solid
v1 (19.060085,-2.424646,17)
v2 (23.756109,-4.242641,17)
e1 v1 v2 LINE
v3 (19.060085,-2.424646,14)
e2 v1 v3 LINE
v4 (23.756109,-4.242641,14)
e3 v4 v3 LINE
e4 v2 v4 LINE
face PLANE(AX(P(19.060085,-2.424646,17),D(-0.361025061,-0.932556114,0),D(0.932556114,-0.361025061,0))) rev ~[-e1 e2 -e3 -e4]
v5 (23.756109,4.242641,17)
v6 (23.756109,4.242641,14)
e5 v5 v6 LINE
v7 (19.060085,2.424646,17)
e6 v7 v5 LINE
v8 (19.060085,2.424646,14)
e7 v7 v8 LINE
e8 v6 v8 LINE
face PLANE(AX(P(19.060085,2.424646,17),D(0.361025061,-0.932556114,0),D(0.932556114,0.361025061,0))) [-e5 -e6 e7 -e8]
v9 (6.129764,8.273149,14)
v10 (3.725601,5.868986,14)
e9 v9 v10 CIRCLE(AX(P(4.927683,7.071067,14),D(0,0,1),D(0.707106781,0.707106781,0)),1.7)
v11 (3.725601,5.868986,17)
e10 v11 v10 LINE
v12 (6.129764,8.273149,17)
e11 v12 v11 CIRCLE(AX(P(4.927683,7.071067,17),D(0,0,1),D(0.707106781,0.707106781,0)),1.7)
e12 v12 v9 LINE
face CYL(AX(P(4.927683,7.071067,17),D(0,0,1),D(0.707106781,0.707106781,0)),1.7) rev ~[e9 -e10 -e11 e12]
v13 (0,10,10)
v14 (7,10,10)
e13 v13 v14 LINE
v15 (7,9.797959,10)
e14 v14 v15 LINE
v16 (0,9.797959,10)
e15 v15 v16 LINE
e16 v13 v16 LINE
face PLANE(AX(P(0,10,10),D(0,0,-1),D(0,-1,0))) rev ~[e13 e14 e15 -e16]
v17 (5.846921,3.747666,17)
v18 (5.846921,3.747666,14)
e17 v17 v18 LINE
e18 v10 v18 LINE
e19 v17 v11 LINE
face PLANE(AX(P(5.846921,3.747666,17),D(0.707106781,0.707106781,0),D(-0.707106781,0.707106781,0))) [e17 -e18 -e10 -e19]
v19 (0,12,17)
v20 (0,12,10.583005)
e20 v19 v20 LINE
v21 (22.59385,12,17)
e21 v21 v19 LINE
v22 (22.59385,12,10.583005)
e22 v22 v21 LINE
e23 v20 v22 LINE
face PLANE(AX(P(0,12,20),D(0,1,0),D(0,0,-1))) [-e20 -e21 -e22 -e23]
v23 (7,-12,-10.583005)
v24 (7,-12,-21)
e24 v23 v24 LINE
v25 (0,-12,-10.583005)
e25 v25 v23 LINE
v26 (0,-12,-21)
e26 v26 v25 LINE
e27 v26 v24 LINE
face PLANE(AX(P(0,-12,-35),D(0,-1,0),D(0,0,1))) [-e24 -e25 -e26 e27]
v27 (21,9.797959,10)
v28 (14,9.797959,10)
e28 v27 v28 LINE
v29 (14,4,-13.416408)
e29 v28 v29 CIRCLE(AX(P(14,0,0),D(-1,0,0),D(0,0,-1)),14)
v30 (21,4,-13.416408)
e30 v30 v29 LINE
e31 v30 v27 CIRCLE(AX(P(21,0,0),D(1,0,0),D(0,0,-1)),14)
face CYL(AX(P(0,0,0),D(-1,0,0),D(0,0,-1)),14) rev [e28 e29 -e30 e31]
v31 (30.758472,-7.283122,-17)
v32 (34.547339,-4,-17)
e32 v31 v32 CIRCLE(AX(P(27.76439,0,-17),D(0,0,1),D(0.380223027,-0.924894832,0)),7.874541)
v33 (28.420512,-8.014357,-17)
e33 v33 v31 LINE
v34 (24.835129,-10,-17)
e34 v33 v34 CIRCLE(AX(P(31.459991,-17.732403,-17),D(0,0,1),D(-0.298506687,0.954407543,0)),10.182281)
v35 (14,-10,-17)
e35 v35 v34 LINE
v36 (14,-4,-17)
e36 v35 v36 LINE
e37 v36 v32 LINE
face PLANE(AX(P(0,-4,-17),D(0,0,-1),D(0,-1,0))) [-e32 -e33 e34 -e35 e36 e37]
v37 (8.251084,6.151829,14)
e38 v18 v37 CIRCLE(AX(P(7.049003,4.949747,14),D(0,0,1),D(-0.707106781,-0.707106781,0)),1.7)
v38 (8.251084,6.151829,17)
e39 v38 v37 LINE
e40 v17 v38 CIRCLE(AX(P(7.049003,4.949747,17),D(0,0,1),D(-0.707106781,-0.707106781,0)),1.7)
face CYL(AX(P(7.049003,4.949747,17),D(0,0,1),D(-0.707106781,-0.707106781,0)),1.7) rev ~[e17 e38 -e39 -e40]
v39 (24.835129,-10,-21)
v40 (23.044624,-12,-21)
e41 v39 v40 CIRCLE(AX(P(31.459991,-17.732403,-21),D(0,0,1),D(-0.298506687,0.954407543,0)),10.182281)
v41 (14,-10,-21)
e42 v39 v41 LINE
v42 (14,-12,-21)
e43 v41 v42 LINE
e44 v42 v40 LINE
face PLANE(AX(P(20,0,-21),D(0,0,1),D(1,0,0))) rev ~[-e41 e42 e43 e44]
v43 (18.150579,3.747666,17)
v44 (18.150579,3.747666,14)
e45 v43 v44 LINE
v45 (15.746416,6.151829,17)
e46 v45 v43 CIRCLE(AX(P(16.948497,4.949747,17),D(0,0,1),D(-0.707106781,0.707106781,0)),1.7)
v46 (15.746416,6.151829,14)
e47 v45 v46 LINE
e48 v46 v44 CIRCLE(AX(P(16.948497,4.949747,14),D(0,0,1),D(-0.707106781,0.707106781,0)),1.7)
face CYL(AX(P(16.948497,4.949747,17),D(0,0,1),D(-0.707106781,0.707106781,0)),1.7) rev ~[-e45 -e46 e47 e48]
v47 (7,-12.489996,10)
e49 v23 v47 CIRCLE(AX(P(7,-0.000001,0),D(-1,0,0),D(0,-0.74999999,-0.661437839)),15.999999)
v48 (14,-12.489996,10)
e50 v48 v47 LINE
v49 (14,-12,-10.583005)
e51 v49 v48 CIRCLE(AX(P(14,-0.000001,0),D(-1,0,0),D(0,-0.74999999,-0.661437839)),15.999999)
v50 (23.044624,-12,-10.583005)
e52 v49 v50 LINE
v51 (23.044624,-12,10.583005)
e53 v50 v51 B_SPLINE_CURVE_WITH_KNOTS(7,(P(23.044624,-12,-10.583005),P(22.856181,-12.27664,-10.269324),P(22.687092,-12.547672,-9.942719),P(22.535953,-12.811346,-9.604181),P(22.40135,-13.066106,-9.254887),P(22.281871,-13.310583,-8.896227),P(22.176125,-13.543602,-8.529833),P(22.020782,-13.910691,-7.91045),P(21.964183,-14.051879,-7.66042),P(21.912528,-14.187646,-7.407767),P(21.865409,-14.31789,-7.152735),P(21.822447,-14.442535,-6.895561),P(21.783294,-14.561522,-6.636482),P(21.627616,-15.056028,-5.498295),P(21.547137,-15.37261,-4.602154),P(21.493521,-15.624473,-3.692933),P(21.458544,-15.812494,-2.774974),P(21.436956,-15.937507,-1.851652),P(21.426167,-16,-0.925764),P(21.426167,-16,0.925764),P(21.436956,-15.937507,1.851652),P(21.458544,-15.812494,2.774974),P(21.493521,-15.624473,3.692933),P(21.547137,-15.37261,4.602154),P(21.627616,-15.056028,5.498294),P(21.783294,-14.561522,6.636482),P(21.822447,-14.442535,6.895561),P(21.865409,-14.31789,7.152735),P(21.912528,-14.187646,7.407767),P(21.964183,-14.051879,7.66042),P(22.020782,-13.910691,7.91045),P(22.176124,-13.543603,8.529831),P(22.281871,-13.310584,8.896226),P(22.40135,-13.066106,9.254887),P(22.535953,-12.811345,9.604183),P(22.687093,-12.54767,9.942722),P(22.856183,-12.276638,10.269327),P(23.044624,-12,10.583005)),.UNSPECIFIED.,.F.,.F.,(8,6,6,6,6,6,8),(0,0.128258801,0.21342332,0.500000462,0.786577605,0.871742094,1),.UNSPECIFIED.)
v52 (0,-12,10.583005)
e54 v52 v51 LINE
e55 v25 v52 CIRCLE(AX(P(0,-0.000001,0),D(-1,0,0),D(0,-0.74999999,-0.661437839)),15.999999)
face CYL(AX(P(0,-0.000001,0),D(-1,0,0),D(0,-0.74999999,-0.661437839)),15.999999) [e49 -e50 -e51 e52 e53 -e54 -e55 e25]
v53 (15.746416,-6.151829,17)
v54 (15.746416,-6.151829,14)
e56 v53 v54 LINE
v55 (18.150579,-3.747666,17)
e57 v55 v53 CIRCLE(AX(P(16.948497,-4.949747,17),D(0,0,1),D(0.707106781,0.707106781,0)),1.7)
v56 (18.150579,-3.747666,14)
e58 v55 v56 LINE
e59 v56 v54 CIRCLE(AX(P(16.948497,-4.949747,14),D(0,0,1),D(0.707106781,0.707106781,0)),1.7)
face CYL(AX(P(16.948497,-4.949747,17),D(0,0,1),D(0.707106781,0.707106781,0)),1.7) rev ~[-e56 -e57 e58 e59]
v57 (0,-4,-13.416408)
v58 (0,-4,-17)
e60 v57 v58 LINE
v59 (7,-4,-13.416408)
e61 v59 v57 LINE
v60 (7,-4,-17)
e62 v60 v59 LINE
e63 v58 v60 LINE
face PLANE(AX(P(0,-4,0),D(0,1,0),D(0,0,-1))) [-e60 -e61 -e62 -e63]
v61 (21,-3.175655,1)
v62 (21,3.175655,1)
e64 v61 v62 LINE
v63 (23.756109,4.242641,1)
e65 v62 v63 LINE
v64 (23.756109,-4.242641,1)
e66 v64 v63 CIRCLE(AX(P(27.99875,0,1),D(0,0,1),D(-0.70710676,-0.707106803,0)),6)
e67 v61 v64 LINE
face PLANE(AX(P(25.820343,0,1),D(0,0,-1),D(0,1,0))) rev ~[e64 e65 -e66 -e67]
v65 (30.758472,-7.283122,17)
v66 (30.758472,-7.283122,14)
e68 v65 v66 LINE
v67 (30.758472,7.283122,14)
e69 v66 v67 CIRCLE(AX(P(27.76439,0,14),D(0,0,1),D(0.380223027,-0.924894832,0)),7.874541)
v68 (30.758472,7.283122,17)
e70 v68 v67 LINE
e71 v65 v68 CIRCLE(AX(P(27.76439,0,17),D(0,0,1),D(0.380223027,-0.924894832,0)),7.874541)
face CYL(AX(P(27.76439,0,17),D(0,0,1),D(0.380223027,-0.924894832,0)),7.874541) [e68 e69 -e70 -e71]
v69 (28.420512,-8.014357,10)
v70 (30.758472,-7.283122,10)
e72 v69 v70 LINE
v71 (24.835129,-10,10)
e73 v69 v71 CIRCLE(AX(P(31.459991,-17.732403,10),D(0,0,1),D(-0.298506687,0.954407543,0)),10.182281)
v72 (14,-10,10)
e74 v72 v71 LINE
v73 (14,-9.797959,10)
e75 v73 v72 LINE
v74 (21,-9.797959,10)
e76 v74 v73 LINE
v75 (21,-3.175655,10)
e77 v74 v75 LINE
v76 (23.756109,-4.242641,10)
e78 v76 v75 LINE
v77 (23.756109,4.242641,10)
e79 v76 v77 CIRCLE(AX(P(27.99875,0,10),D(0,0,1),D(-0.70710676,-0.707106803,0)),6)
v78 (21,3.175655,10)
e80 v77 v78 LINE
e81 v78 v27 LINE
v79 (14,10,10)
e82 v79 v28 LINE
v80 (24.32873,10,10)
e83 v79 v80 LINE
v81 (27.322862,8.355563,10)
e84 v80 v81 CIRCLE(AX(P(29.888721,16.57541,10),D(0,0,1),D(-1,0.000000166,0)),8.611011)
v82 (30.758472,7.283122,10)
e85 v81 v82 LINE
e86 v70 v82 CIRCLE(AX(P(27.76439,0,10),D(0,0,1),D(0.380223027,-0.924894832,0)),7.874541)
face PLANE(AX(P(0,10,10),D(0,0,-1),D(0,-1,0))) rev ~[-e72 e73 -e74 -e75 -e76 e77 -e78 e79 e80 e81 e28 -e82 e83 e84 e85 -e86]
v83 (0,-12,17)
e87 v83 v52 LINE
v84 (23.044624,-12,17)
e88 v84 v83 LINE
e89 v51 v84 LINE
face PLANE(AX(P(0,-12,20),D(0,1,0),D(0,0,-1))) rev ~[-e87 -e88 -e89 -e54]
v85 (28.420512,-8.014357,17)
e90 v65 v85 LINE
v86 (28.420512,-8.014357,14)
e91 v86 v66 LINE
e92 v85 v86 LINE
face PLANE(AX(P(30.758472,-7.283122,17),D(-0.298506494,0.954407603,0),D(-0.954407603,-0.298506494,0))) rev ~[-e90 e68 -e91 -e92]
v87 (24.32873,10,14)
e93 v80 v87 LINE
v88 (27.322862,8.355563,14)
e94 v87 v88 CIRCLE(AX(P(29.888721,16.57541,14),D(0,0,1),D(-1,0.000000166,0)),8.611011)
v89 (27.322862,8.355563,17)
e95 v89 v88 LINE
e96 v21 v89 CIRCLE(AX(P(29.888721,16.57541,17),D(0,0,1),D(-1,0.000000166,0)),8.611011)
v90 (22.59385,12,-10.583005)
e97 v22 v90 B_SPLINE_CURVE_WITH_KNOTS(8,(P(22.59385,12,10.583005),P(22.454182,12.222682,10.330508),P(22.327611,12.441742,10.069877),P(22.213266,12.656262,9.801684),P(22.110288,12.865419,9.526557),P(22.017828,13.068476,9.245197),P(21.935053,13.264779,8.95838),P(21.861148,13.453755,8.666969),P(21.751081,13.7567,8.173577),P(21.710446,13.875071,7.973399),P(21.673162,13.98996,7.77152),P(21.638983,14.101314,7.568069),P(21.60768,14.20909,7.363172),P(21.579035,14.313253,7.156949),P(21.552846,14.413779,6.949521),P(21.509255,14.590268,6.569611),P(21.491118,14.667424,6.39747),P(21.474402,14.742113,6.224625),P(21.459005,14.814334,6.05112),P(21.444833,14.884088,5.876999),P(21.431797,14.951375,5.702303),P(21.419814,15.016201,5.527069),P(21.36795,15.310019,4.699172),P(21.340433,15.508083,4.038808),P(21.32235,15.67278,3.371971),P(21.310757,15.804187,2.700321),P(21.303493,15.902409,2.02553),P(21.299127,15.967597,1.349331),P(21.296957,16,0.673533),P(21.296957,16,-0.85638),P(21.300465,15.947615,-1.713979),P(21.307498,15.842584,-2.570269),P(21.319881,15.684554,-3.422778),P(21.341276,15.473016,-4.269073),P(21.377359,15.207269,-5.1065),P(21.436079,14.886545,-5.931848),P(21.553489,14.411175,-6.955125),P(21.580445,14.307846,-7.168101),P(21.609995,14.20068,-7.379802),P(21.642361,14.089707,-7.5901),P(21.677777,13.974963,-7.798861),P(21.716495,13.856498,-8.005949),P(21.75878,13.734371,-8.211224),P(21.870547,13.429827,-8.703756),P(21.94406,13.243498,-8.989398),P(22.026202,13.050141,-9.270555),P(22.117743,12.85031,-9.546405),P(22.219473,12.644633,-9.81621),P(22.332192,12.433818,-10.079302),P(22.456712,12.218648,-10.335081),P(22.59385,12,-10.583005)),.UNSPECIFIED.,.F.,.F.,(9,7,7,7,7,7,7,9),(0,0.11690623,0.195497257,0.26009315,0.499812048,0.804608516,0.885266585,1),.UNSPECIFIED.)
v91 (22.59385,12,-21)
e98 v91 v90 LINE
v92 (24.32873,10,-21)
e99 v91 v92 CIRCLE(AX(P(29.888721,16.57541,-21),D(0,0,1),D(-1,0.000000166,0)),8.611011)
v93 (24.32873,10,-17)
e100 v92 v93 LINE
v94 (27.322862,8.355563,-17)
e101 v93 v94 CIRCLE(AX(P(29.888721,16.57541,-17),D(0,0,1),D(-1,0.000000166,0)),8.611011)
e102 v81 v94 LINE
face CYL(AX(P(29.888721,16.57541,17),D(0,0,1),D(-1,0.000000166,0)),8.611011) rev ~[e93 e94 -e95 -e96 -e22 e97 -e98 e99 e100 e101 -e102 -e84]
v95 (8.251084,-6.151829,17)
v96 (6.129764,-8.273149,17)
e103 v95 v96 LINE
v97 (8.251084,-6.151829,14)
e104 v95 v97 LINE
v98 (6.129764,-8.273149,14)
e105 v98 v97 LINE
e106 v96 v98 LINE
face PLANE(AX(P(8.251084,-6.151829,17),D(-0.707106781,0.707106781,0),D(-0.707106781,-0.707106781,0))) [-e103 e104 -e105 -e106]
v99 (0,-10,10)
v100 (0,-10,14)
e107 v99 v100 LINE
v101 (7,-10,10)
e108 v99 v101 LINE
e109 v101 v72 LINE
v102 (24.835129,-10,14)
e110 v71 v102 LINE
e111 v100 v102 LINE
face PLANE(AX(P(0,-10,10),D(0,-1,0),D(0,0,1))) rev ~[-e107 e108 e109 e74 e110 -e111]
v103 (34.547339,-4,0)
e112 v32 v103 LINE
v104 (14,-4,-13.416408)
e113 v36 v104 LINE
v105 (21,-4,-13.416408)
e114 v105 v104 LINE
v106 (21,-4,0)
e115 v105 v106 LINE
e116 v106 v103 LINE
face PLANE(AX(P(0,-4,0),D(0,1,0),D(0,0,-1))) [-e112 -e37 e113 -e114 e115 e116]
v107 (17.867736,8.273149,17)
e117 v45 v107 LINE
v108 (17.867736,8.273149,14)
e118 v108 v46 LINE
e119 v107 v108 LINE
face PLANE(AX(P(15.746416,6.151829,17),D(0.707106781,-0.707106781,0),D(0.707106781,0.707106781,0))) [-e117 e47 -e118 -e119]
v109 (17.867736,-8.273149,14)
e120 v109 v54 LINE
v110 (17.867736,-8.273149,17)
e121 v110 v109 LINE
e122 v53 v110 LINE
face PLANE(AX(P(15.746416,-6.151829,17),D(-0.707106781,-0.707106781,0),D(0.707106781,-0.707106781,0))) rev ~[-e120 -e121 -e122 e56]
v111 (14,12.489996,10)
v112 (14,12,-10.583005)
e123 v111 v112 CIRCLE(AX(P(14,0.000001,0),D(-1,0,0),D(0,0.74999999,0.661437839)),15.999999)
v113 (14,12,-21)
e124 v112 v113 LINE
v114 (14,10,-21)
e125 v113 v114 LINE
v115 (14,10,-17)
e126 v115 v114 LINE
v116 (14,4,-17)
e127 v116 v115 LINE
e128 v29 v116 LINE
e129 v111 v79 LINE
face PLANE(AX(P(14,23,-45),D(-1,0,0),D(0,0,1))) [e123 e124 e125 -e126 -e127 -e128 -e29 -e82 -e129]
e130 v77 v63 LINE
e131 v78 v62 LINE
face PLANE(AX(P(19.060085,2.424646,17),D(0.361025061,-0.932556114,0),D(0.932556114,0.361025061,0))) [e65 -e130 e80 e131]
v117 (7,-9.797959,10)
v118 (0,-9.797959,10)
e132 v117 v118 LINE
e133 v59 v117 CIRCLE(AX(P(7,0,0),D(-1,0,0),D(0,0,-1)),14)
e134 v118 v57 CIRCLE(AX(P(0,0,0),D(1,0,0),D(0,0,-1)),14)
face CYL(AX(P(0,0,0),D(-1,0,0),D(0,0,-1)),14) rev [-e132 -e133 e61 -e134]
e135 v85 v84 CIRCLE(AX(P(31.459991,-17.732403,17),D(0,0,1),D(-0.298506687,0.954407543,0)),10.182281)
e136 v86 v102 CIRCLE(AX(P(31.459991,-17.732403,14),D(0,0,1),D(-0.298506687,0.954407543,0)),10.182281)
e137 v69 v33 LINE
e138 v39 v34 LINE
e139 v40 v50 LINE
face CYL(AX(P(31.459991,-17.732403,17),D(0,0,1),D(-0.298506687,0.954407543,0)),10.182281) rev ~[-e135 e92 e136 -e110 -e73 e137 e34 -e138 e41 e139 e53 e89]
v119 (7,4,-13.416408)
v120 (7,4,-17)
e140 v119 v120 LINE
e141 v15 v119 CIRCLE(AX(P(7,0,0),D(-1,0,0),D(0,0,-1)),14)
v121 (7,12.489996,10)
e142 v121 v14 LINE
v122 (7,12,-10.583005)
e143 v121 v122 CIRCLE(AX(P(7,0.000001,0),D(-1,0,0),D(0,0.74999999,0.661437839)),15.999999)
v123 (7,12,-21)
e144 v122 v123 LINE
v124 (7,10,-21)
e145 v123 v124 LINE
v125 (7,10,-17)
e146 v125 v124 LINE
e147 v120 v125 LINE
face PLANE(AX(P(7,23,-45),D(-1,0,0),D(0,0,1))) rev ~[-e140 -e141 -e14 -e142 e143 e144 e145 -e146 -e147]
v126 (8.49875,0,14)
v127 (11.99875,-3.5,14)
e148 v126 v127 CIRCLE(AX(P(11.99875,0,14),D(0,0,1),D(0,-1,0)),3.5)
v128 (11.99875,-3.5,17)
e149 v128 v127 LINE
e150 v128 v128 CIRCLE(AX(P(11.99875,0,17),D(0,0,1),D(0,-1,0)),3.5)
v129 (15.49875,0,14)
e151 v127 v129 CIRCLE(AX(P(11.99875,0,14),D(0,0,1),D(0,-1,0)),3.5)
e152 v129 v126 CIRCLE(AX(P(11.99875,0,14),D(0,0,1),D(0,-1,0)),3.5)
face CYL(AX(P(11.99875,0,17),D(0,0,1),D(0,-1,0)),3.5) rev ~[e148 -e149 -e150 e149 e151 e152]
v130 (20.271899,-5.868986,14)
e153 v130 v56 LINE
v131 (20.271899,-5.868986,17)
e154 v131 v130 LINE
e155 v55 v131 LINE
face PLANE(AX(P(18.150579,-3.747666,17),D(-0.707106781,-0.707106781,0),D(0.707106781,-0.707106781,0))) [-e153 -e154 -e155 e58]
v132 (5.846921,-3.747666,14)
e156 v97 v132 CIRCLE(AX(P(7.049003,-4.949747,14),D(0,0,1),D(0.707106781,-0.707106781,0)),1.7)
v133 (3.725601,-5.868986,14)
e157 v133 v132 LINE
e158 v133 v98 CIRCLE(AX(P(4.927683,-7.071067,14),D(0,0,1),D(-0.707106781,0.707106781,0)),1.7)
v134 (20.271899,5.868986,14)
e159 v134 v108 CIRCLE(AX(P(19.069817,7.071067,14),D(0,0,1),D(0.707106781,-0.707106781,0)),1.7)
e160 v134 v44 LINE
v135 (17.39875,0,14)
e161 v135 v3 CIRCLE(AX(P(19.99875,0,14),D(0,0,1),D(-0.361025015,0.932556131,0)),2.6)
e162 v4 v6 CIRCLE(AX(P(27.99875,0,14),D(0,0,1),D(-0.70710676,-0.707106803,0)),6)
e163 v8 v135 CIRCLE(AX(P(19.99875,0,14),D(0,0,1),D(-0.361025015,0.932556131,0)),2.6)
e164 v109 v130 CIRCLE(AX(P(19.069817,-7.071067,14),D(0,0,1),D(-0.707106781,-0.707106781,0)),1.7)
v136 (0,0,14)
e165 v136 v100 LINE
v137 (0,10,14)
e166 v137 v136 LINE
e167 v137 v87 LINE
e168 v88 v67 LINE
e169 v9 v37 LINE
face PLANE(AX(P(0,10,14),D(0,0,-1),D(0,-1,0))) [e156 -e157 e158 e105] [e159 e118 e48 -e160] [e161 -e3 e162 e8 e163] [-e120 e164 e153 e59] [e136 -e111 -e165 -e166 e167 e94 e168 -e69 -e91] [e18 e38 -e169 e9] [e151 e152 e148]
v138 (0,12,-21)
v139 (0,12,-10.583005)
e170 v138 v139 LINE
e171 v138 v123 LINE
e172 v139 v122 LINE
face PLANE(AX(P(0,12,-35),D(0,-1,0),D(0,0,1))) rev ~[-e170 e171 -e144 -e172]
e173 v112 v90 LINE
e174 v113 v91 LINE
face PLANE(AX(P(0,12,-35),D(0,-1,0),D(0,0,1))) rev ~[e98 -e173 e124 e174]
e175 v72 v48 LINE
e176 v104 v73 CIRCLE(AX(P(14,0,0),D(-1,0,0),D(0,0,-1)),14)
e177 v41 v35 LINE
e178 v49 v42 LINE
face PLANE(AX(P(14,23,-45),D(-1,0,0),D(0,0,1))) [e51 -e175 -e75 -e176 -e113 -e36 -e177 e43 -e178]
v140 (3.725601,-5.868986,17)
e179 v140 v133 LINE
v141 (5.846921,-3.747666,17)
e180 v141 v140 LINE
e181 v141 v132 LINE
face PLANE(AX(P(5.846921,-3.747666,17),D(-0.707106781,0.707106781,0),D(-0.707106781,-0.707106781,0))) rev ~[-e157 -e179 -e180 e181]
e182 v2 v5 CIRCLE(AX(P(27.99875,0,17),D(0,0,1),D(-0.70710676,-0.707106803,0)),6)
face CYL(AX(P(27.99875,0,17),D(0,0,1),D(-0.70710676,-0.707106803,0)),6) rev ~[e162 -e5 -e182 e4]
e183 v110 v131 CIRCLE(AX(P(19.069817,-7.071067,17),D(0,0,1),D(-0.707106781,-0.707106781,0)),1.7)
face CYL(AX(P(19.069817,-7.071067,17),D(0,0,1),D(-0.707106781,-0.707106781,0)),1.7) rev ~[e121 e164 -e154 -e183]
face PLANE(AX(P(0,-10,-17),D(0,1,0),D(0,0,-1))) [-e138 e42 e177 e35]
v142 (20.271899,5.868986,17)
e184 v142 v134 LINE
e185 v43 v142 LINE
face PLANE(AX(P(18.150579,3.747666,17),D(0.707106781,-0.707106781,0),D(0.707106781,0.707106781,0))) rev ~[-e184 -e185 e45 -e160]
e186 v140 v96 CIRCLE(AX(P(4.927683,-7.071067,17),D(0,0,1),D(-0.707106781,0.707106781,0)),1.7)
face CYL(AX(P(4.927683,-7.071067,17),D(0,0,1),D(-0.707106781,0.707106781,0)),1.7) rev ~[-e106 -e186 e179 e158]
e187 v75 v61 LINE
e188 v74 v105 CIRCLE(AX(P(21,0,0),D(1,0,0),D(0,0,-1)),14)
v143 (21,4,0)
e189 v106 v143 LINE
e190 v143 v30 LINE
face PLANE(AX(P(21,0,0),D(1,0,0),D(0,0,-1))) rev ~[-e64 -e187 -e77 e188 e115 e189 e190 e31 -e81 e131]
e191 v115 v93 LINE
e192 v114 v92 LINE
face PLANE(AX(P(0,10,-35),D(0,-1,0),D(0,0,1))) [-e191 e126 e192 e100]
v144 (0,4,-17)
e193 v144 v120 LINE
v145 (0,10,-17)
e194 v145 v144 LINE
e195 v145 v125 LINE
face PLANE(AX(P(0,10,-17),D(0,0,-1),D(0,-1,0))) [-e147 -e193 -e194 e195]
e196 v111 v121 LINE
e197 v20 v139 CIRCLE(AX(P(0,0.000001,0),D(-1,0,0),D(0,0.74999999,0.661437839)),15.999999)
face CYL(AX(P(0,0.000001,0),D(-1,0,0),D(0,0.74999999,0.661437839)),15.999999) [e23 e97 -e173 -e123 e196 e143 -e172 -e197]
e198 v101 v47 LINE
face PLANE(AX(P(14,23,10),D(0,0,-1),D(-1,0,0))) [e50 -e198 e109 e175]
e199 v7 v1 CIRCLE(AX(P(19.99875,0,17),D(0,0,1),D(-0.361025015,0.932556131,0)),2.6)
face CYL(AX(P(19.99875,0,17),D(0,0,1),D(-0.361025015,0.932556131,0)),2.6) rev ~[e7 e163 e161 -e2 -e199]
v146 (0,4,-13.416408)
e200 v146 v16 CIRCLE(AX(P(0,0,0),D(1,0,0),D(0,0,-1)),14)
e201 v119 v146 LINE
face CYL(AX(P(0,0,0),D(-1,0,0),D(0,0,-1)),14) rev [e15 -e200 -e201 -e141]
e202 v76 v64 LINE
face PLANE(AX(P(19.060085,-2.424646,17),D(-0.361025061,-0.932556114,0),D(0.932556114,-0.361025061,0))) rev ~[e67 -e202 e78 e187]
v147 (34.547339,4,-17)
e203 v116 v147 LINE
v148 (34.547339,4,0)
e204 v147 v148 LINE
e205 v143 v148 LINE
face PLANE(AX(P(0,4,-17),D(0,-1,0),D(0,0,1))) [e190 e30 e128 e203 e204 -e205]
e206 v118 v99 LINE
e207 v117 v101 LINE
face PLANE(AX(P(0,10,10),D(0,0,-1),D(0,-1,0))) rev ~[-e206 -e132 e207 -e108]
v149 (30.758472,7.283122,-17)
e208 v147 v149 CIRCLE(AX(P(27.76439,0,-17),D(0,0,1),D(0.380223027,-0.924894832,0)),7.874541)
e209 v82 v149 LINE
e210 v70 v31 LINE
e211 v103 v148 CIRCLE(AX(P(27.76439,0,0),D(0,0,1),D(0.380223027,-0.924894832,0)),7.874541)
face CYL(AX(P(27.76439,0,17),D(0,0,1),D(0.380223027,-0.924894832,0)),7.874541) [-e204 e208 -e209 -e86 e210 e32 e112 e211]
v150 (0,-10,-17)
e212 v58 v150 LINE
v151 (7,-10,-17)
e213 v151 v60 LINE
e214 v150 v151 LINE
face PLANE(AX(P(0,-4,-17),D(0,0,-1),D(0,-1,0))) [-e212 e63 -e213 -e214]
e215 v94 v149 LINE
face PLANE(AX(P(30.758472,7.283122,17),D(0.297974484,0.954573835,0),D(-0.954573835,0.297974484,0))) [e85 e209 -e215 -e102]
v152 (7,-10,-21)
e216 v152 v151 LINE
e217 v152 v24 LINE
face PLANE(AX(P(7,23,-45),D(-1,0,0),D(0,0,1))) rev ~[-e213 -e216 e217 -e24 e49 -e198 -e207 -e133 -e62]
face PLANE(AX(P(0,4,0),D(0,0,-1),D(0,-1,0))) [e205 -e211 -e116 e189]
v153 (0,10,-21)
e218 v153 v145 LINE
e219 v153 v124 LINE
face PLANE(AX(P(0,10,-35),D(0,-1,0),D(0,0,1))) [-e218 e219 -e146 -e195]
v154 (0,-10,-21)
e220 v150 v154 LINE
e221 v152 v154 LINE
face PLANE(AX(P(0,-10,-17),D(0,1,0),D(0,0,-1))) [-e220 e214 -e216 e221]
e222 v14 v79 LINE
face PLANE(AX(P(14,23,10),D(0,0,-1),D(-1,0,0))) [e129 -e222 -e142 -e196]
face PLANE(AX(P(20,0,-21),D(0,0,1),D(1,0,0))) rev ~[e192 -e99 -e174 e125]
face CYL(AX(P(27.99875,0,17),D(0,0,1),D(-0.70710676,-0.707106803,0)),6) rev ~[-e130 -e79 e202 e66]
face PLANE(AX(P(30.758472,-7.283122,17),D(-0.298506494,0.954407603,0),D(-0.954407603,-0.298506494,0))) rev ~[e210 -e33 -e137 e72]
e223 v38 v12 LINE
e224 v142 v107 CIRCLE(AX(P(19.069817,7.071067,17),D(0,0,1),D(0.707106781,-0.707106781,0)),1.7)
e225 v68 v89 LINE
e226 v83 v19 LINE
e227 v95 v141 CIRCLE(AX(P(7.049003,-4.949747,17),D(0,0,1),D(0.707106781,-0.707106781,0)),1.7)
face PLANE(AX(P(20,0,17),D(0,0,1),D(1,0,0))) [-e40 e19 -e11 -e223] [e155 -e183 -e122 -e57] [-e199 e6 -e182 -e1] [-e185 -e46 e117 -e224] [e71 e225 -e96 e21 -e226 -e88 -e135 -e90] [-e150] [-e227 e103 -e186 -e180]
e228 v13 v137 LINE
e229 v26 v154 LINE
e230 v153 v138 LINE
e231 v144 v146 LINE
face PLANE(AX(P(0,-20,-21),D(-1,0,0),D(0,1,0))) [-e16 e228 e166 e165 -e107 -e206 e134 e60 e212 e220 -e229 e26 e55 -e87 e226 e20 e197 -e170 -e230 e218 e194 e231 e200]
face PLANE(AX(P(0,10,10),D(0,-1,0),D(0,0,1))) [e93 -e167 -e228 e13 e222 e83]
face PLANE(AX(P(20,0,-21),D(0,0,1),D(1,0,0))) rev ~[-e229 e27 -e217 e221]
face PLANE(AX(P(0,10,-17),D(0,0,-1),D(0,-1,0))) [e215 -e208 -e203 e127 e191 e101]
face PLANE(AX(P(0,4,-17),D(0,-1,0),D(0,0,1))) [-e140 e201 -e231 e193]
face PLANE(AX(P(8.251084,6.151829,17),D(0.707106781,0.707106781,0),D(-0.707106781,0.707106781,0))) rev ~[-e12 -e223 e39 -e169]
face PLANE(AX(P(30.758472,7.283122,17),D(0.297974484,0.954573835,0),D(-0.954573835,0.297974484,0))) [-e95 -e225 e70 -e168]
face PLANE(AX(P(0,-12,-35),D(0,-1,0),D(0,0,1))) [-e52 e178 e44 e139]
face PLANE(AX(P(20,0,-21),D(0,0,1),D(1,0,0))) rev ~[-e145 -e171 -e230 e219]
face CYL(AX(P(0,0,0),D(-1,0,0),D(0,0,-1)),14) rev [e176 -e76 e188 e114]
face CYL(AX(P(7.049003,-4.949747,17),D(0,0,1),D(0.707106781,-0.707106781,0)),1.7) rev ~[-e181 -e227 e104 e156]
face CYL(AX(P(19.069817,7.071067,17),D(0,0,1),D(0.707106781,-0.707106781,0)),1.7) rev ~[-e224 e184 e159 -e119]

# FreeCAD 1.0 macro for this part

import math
import FreeCAD as App
import Part
import Sketcher
from FreeCAD import Vector
Q = App.Units.Quantity

doc = App.newDocument("Part")
body = doc.addObject("PartDesign::Body", "Body")

sketch1 = body.newObject("Sketcher::SketchObject", "Sketch")
sketch1.AttachmentSupport = (doc.getObject("XY_Plane"), [""])
sketch1.MapMode = "FlatFace"
sketch1.AttachmentOffset = App.Placement(Vector(0, 0, 17), App.Rotation())
sketch1.addGeometry(Part.ArcOfCircle(Part.Circle(Vector(27.8, 0, 0), Vector(0, 0, 1), 7.9), math.radians(-68), math.radians(68)), False)
sketch1.addGeometry(Part.LineSegment(Vector(30.8, -7.3, 0), Vector(28.4, -8, 0)), False)
sketch1.addGeometry(Part.ArcOfCircle(Part.Circle(Vector(31.5, -17.7, 0), Vector(0, 0, 1), 10.2), math.radians(107), math.radians(180)), False)
sketch1.addGeometry(Part.LineSegment(Vector(21.3, -17.7, 0), Vector(21.3, -32.5, 0)), False)
sketch1.addGeometry(Part.LineSegment(Vector(21.3, -32.5, 0), Vector(57.6, -32.5, 0)), False)
sketch1.addGeometry(Part.LineSegment(Vector(57.6, -32.5, 0), Vector(57.6, 32.5, 0)), False)
sketch1.addGeometry(Part.LineSegment(Vector(57.6, 32.5, 0), Vector(21.3, 32.5, 0)), False)
sketch1.addGeometry(Part.LineSegment(Vector(21.3, 32.5, 0), Vector(21.3, 16.6, 0)), False)
sketch1.addGeometry(Part.ArcOfCircle(Part.Circle(Vector(29.9, 16.6, 0), Vector(0, 0, 1), 8.6), math.radians(180), math.radians(253)), False)
sketch1.addGeometry(Part.LineSegment(Vector(27.3, 8.4, 0), Vector(30.8, 7.3, 0)), False)
sketch1.addConstraint(Sketcher.Constraint("Coincident", 0, 1, 1, 1))
sketch1.addConstraint(Sketcher.Constraint("Tangent", 1, 2, 2, 1))
sketch1.addConstraint(Sketcher.Constraint("Tangent", 2, 2, 3, 1))
sketch1.addConstraint(Sketcher.Constraint("Coincident", 3, 2, 4, 1))
sketch1.addConstraint(Sketcher.Constraint("Coincident", 4, 2, 5, 1))
sketch1.addConstraint(Sketcher.Constraint("Coincident", 5, 2, 6, 1))
sketch1.addConstraint(Sketcher.Constraint("Coincident", 6, 2, 7, 1))
sketch1.addConstraint(Sketcher.Constraint("Tangent", 7, 2, 8, 1))
sketch1.addConstraint(Sketcher.Constraint("Tangent", 8, 2, 9, 1))
sketch1.addConstraint(Sketcher.Constraint("Coincident", 9, 2, 0, 2))
sketch1.addConstraint(Sketcher.Constraint("Vertical", 3))
sketch1.addConstraint(Sketcher.Constraint("Horizontal", 4))
sketch1.addConstraint(Sketcher.Constraint("Vertical", 5))
sketch1.addConstraint(Sketcher.Constraint("Horizontal", 6))
sketch1.addConstraint(Sketcher.Constraint("Vertical", 7))
sketch1.addConstraint(Sketcher.Constraint("Symmetric", 3, 2, 6, 2, -1))
sketch1.addConstraint(Sketcher.Constraint("Symmetric", 0, 1, 9, 2, -1))
sketch1.addConstraint(Sketcher.Constraint("Radius", 0, Q("7.874541 mm")))
sketch1.addConstraint(Sketcher.Constraint("Radius", 2, Q("10.182281 mm")))
sketch1.addConstraint(Sketcher.Constraint("Radius", 8, Q("8.611011 mm")))
sketch1.addConstraint(Sketcher.Constraint("DistanceY", 3, 2, -1, 1, Q("32.499498 mm")))
sketch1.addConstraint(Sketcher.Constraint("DistanceX", 0, 3, 2, 3, Q("3.695601 mm")))
sketch1.addConstraint(Sketcher.Constraint("DistanceX", 2, 2, 1, 2, Q("7.142802 mm")))
sketch1.addConstraint(Sketcher.Constraint("DistanceY", 2, 3, 5, 2, Q("50.231901 mm")))
sketch1.addConstraint(Sketcher.Constraint("DistanceX", 4, 1, 4, 2, Q("36.345085 mm")))
sketch1.addConstraint(Sketcher.Constraint("DistanceY", 7, 2, 7, 1, Q("15.924087 mm")))
sketch1.addConstraint(Sketcher.Constraint("DistanceX", -1, 1, 0, 3, Q("27.76439 mm")))
pad1 = body.newObject("PartDesign::Pad", "Pad")
pad1.Profile = sketch1
pad1.Length = 50
pad1.Reversed = True
body2 = doc.addObject("PartDesign::Body", "Body001")
body2.AllowCompound = True

sketch2 = body2.newObject("Sketcher::SketchObject", "Sketch001")
sketch2.AttachmentSupport = (doc.getObject("XY_Plane001"), [""])
sketch2.MapMode = "FlatFace"
sketch2.addGeometry(Part.Circle(Vector(0, 16, 0), Vector(0, 0, 1), 3.5), False)
sketch2.addGeometry(Part.ArcOfCircle(Part.Circle(Vector(-4.9, 20.9, 0), Vector(0, 0, 1), 1.7), math.radians(-135), math.radians(45)), False)
sketch2.addGeometry(Part.LineSegment(Vector(-3.7, 22.2, 0), Vector(-5.9, 24.3, 0)), False)
sketch2.addGeometry(Part.ArcOfCircle(Part.Circle(Vector(-7.1, 23.1, 0), Vector(0, 0, 1), 1.7), math.radians(45), math.radians(225)), False)
sketch2.addGeometry(Part.LineSegment(Vector(-8.3, 21.9, 0), Vector(-6.2, 19.7, 0)), False)
sketch2.addGeometry(Part.ArcOfCircle(Part.Circle(Vector(-4.9, 11, 0), Vector(0, 0, 1), 1.7), math.radians(-45), math.radians(135)), False)
sketch2.addGeometry(Part.LineSegment(Vector(-6.2, 12.3, 0), Vector(-8.3, 10.1, 0)), False)
sketch2.addGeometry(Part.ArcOfCircle(Part.Circle(Vector(-7.1, 8.9, 0), Vector(0, 0, 1), 1.7), math.radians(135), math.radians(315)), False)
sketch2.addGeometry(Part.LineSegment(Vector(-5.9, 7.7, 0), Vector(-3.7, 9.8, 0)), False)
sketch2.addGeometry(Part.ArcOfCircle(Part.Circle(Vector(4.9, 11, 0), Vector(0, 0, 1), 1.7), math.radians(45), math.radians(225)), False)
sketch2.addGeometry(Part.LineSegment(Vector(3.7, 9.8, 0), Vector(5.9, 7.7, 0)), False)
sketch2.addGeometry(Part.ArcOfCircle(Part.Circle(Vector(7.1, 8.9, 0), Vector(0, 0, 1), 1.7), math.radians(-135), math.radians(45)), False)
sketch2.addGeometry(Part.LineSegment(Vector(8.3, 10.1, 0), Vector(6.2, 12.3, 0)), False)
sketch2.addGeometry(Part.ArcOfCircle(Part.Circle(Vector(4.9, 20.9, 0), Vector(0, 0, 1), 1.7), math.radians(135), math.radians(315)), False)
sketch2.addGeometry(Part.LineSegment(Vector(6.2, 19.7, 0), Vector(8.3, 21.9, 0)), False)
sketch2.addGeometry(Part.ArcOfCircle(Part.Circle(Vector(7.1, 23.1, 0), Vector(0, 0, 1), 1.7), math.radians(-45), math.radians(135)), False)
sketch2.addGeometry(Part.LineSegment(Vector(5.9, 24.3, 0), Vector(3.7, 22.2, 0)), False)
sketch2.addGeometry(Part.LineSegment(Vector(-4.2, 27.8, 0), Vector(-2.4, 23.1, 0)), False)
sketch2.addGeometry(Part.ArcOfCircle(Part.Circle(Vector(0, 24, 0), Vector(0, 0, 1), 2.6), math.radians(-159), math.radians(-21)), False)
sketch2.addGeometry(Part.LineSegment(Vector(2.4, 23.1, 0), Vector(4.2, 27.8, 0)), False)
sketch2.addGeometry(Part.ArcOfCircle(Part.Circle(Vector(0, 32, 0), Vector(0, 0, 1), 6), math.radians(-45), math.radians(225)), False)
sketch2.addConstraint(Sketcher.Constraint("Tangent", 1, 2, 2, 1))
sketch2.addConstraint(Sketcher.Constraint("Tangent", 2, 2, 3, 1))
sketch2.addConstraint(Sketcher.Constraint("Tangent", 3, 2, 4, 1))
sketch2.addConstraint(Sketcher.Constraint("Tangent", 4, 2, 1, 1))
sketch2.addConstraint(Sketcher.Constraint("Tangent", 5, 2, 6, 1))
sketch2.addConstraint(Sketcher.Constraint("Tangent", 6, 2, 7, 1))
sketch2.addConstraint(Sketcher.Constraint("Tangent", 7, 2, 8, 1))
sketch2.addConstraint(Sketcher.Constraint("Tangent", 8, 2, 5, 1))
sketch2.addConstraint(Sketcher.Constraint("Tangent", 9, 2, 10, 1))
sketch2.addConstraint(Sketcher.Constraint("Tangent", 10, 2, 11, 1))
sketch2.addConstraint(Sketcher.Constraint("Tangent", 11, 2, 12, 1))
sketch2.addConstraint(Sketcher.Constraint("Tangent", 12, 2, 9, 1))
sketch2.addConstraint(Sketcher.Constraint("Tangent", 13, 2, 14, 1))
sketch2.addConstraint(Sketcher.Constraint("Tangent", 14, 2, 15, 1))
sketch2.addConstraint(Sketcher.Constraint("Tangent", 15, 2, 16, 1))
sketch2.addConstraint(Sketcher.Constraint("Tangent", 16, 2, 13, 1))
sketch2.addConstraint(Sketcher.Constraint("Tangent", 17, 2, 18, 1))
sketch2.addConstraint(Sketcher.Constraint("Tangent", 18, 2, 19, 1))
sketch2.addConstraint(Sketcher.Constraint("Coincident", 19, 2, 20, 1))
sketch2.addConstraint(Sketcher.Constraint("Coincident", 20, 2, 17, 1))
sketch2.addConstraint(Sketcher.Constraint("Equal", 1, 3))
sketch2.addConstraint(Sketcher.Constraint("Equal", 3, 5))
sketch2.addConstraint(Sketcher.Constraint("Equal", 5, 7))
sketch2.addConstraint(Sketcher.Constraint("Equal", 7, 9))
sketch2.addConstraint(Sketcher.Constraint("Equal", 9, 11))
sketch2.addConstraint(Sketcher.Constraint("Equal", 11, 13))
sketch2.addConstraint(Sketcher.Constraint("Equal", 13, 15))
sketch2.addConstraint(Sketcher.Constraint("Symmetric", 5, 3, 9, 3, -2))
sketch2.addConstraint(Sketcher.Constraint("Symmetric", 7, 3, 11, 3, -2))
sketch2.addConstraint(Sketcher.Constraint("Symmetric", 1, 3, 13, 3, -2))
sketch2.addConstraint(Sketcher.Constraint("Symmetric", 3, 3, 15, 3, -2))
sketch2.addConstraint(Sketcher.Constraint("Symmetric", 17, 2, 18, 2, -2))
sketch2.addConstraint(Sketcher.Constraint("PointOnObject", 0, 3, -2))
sketch2.addConstraint(Sketcher.Constraint("PointOnObject", 20, 3, -2))
sketch2.addConstraint(Sketcher.Constraint("Perpendicular", 4, 6))
sketch2.addConstraint(Sketcher.Constraint("Perpendicular", 8, 10))
sketch2.addConstraint(Sketcher.Constraint("Vertical", 1, 3, 5, 3))
sketch2.addConstraint(Sketcher.Constraint("Vertical", 3, 3, 7, 3))
sketch2.addConstraint(Sketcher.Constraint("Diameter", 0, Q("7 mm")))
sketch2.addConstraint(Sketcher.Constraint("Radius", 20, Q("6 mm")))
sketch2.addConstraint(Sketcher.Constraint("Radius", 1, Q("1.7 mm")))
sketch2.addConstraint(Sketcher.Constraint("Radius", 18, Q("2.6 mm")))
sketch2.addConstraint(Sketcher.Constraint("Distance", 2, Q("3 mm")))
sketch2.addConstraint(Sketcher.Constraint("DistanceY", 0, 3, 18, 3, Q("8 mm")))
sketch2.addConstraint(Sketcher.Constraint("DistanceY", 18, 3, 20, 3, Q("8 mm")))
sketch2.addConstraint(Sketcher.Constraint("DistanceY", -1, 1, 2, 2, Q("24.271899 mm")))
sketch2.addConstraint(Sketcher.Constraint("DistanceY", -1, 1, 7, 2, Q("7.725601 mm")))
sketch2.addConstraint(Sketcher.Constraint("DistanceX", 1, 3, 17, 2, Q("2.525101 mm")))
sketch2.addConstraint(Sketcher.Constraint("DistanceY", -1, 1, 0, 3, Q("15.99875 mm")))
sketch2.addConstraint(Sketcher.Constraint("DistanceX", 3, 2, -1, 1, Q("8.273149 mm")))
pad2 = body2.newObject("PartDesign::Pad", "Pad001")
pad2.Profile = sketch2
pad2.Length = 16
pad2.Reversed = True
body3 = doc.addObject("PartDesign::Body", "Body002")
body3.AllowCompound = True
doc.recompute()

body2.Placement = App.Placement(Vector(-4, 0, 17), App.Rotation(Vector(0, 0, 1), 270))
boolean = body3.newObject("PartDesign::Boolean", "Boolean")
boolean.Type = "Fuse"
boolean.addObjects([body2])
body4 = doc.addObject("PartDesign::Body", "Body003")

sketch3 = body4.newObject("Sketcher::SketchObject", "Sketch002")
sketch3.AttachmentSupport = (doc.getObject("XY_Plane003"), [""])
sketch3.MapMode = "FlatFace"
sketch3.addGeometry(Part.LineSegment(Vector(-14, 10, 0), Vector(-14, -45, 0)), False)
sketch3.addGeometry(Part.LineSegment(Vector(-14, -45, 0), Vector(-7, -45, 0)), False)
sketch3.addGeometry(Part.LineSegment(Vector(-7, -45, 0), Vector(-7, 10, 0)), False)
sketch3.addGeometry(Part.LineSegment(Vector(-7, 10, 0), Vector(-14, 10, 0)), False)
sketch3.addConstraint(Sketcher.Constraint("Coincident", 0, 2, 1, 1))
sketch3.addConstraint(Sketcher.Constraint("Coincident", 1, 2, 2, 1))
sketch3.addConstraint(Sketcher.Constraint("Coincident", 2, 2, 3, 1))
sketch3.addConstraint(Sketcher.Constraint("Coincident", 3, 2, 0, 1))
sketch3.addConstraint(Sketcher.Constraint("Vertical", 0))
sketch3.addConstraint(Sketcher.Constraint("Horizontal", 1))
sketch3.addConstraint(Sketcher.Constraint("Vertical", 2))
sketch3.addConstraint(Sketcher.Constraint("Horizontal", 3))
sketch3.addConstraint(Sketcher.Constraint("DistanceX", 1, 1, 1, 2, Q("7 mm")))
sketch3.addConstraint(Sketcher.Constraint("DistanceY", 0, 2, 0, 1, Q("55 mm")))
sketch3.addConstraint(Sketcher.Constraint("DistanceX", 0, 2, -1, 1, Q("14 mm")))
sketch3.addConstraint(Sketcher.Constraint("DistanceY", 0, 2, -1, 1, Q("45 mm")))
pad3 = body4.newObject("PartDesign::Pad", "Pad002")
pad3.Profile = sketch3
pad3.Length = 50
pad3.Reversed = True
body5 = doc.addObject("PartDesign::Body", "Body004")
doc.recompute()

body4.Placement = App.Placement(Vector(0, 0, 0), App.Rotation(Vector(1, 0, 0), 90))
boolean2 = body5.newObject("PartDesign::Boolean", "Boolean001")
boolean2.Type = "Fuse"
boolean2.addObjects([body4])
body6 = doc.addObject("PartDesign::Body", "Body005")
doc.recompute()

body5.Placement = App.Placement(Vector(0, 23, 0), App.Rotation(Vector(0, 0, 1), 180))
boolean3 = body6.newObject("PartDesign::Boolean", "Boolean002")
boolean3.Type = "Fuse"
boolean3.addObjects([body5])
body7 = doc.addObject("PartDesign::Body", "Body006")
body7.AllowCompound = True

sketch4 = body7.newObject("Sketcher::SketchObject", "Sketch003")
sketch4.AttachmentSupport = (doc.getObject("YZ_Plane006"), [""])
sketch4.MapMode = "FlatFace"
sketch4.addGeometry(Part.LineSegment(Vector(12, 10.6, 0), Vector(12, 20, 0)), False)
sketch4.addGeometry(Part.LineSegment(Vector(12, 20, 0), Vector(32, 20, 0)), False)
sketch4.addGeometry(Part.LineSegment(Vector(32, 20, 0), Vector(32, -35, 0)), False)
sketch4.addGeometry(Part.LineSegment(Vector(32, -35, 0), Vector(12, -35, 0)), False)
sketch4.addGeometry(Part.LineSegment(Vector(12, -35, 0), Vector(12, -10.6, 0)), False)
sketch4.addGeometry(Part.ArcOfCircle(Part.Circle(Vector(0, 0, 0), Vector(0, 0, 1), 16), math.radians(-41), math.radians(41)), False)
sketch4.addGeometry(Part.ArcOfCircle(Part.Circle(Vector(0, 0, 0), Vector(0, 0, 1), 16), math.radians(139), math.radians(221)), False)
sketch4.addGeometry(Part.LineSegment(Vector(-12, -10.6, 0), Vector(-12, -35, 0)), False)
sketch4.addGeometry(Part.LineSegment(Vector(-12, -35, 0), Vector(-32, -35, 0)), False)
sketch4.addGeometry(Part.LineSegment(Vector(-32, -35, 0), Vector(-32, 20, 0)), False)
sketch4.addGeometry(Part.LineSegment(Vector(-32, 20, 0), Vector(-12, 20, 0)), False)
sketch4.addGeometry(Part.LineSegment(Vector(-12, 20, 0), Vector(-12, 10.6, 0)), False)
sketch4.addGeometry(Part.LineSegment(Vector(-4, 0, 0), Vector(4, 0, 0)), False)
sketch4.addGeometry(Part.LineSegment(Vector(4, 0, 0), Vector(4, -17, 0)), False)
sketch4.addGeometry(Part.LineSegment(Vector(4, -17, 0), Vector(10, -17, 0)), False)
sketch4.addGeometry(Part.LineSegment(Vector(10, -17, 0), Vector(10, -35, 0)), False)
sketch4.addGeometry(Part.LineSegment(Vector(10, -35, 0), Vector(-10, -35, 0)), False)
sketch4.addGeometry(Part.LineSegment(Vector(-10, -35, 0), Vector(-10, -17, 0)), False)
sketch4.addGeometry(Part.LineSegment(Vector(-10, -17, 0), Vector(-4, -17, 0)), False)
sketch4.addGeometry(Part.LineSegment(Vector(-4, -17, 0), Vector(-4, 0, 0)), False)
sketch4.addGeometry(Part.LineSegment(Vector(10, 14, 0), Vector(10, 10, 0)), False)
sketch4.addGeometry(Part.LineSegment(Vector(10, 10, 0), Vector(-10, 10, 0)), False)
sketch4.addGeometry(Part.LineSegment(Vector(-10, 10, 0), Vector(-10, 14, 0)), False)
sketch4.addGeometry(Part.LineSegment(Vector(-10, 14, 0), Vector(10, 14, 0)), False)
sketch4.addConstraint(Sketcher.Constraint("Coincident", 0, 2, 1, 1))
sketch4.addConstraint(Sketcher.Constraint("Coincident", 1, 2, 2, 1))
sketch4.addConstraint(Sketcher.Constraint("Coincident", 2, 2, 3, 1))
sketch4.addConstraint(Sketcher.Constraint("Coincident", 3, 2, 4, 1))
sketch4.addConstraint(Sketcher.Constraint("Coincident", 4, 2, 5, 1))
sketch4.addConstraint(Sketcher.Constraint("Coincident", 5, 2, 0, 1))
sketch4.addConstraint(Sketcher.Constraint("Coincident", 6, 2, 7, 1))
sketch4.addConstraint(Sketcher.Constraint("Coincident", 7, 2, 8, 1))
sketch4.addConstraint(Sketcher.Constraint("Coincident", 8, 2, 9, 1))
sketch4.addConstraint(Sketcher.Constraint("Coincident", 9, 2, 10, 1))
sketch4.addConstraint(Sketcher.Constraint("Coincident", 10, 2, 11, 1))
sketch4.addConstraint(Sketcher.Constraint("Coincident", 11, 2, 6, 1))
sketch4.addConstraint(Sketcher.Constraint("Coincident", 12, 2, 13, 1))
sketch4.addConstraint(Sketcher.Constraint("Coincident", 13, 2, 14, 1))
sketch4.addConstraint(Sketcher.Constraint("Coincident", 14, 2, 15, 1))
sketch4.addConstraint(Sketcher.Constraint("Coincident", 15, 2, 16, 1))
sketch4.addConstraint(Sketcher.Constraint("Coincident", 16, 2, 17, 1))
sketch4.addConstraint(Sketcher.Constraint("Coincident", 17, 2, 18, 1))
sketch4.addConstraint(Sketcher.Constraint("Coincident", 18, 2, 19, 1))
sketch4.addConstraint(Sketcher.Constraint("Coincident", 19, 2, 12, 1))
sketch4.addConstraint(Sketcher.Constraint("Coincident", 20, 2, 21, 1))
sketch4.addConstraint(Sketcher.Constraint("Coincident", 21, 2, 22, 1))
sketch4.addConstraint(Sketcher.Constraint("Coincident", 22, 2, 23, 1))
sketch4.addConstraint(Sketcher.Constraint("Coincident", 23, 2, 20, 1))
sketch4.addConstraint(Sketcher.Constraint("Vertical", 0))
sketch4.addConstraint(Sketcher.Constraint("Horizontal", 1))
sketch4.addConstraint(Sketcher.Constraint("Vertical", 2))
sketch4.addConstraint(Sketcher.Constraint("Horizontal", 3))
sketch4.addConstraint(Sketcher.Constraint("Vertical", 4))
sketch4.addConstraint(Sketcher.Constraint("Vertical", 7))
sketch4.addConstraint(Sketcher.Constraint("Horizontal", 8))
sketch4.addConstraint(Sketcher.Constraint("Vertical", 9))
sketch4.addConstraint(Sketcher.Constraint("Horizontal", 10))
sketch4.addConstraint(Sketcher.Constraint("Vertical", 11))
sketch4.addConstraint(Sketcher.Constraint("Horizontal", 12))
sketch4.addConstraint(Sketcher.Constraint("Vertical", 13))
sketch4.addConstraint(Sketcher.Constraint("Horizontal", 14))
sketch4.addConstraint(Sketcher.Constraint("Vertical", 15))
sketch4.addConstraint(Sketcher.Constraint("Horizontal", 16))
sketch4.addConstraint(Sketcher.Constraint("Vertical", 17))
sketch4.addConstraint(Sketcher.Constraint("Horizontal", 18))
sketch4.addConstraint(Sketcher.Constraint("Vertical", 19))
sketch4.addConstraint(Sketcher.Constraint("Vertical", 20))
sketch4.addConstraint(Sketcher.Constraint("Horizontal", 21))
sketch4.addConstraint(Sketcher.Constraint("Vertical", 22))
sketch4.addConstraint(Sketcher.Constraint("Horizontal", 23))
sketch4.addConstraint(Sketcher.Constraint("Coincident", 5, 3, -1, 1))
sketch4.addConstraint(Sketcher.Constraint("Coincident", 6, 3, -1, 1))
sketch4.addConstraint(Sketcher.Constraint("Equal", 5, 6))
sketch4.addConstraint(Sketcher.Constraint("Symmetric", 12, 2, 19, 2, -1, 1))
sketch4.addConstraint(Sketcher.Constraint("Symmetric", 3, 2, 7, 2, -2))
sketch4.addConstraint(Sketcher.Constraint("Symmetric", 1, 2, 9, 2, -2))
sketch4.addConstraint(Sketcher.Constraint("Symmetric", 14, 2, 17, 2, -2))
sketch4.addConstraint(Sketcher.Constraint("Horizontal", 5, 2, 11, 2))
sketch4.addConstraint(Sketcher.Constraint("Horizontal", 8, 2, 15, 2))
sketch4.addConstraint(Sketcher.Constraint("Vertical", 0, 2, 3, 2))
sketch4.addConstraint(Sketcher.Constraint("Vertical", 15, 2, 20, 2))
sketch4.addConstraint(Sketcher.Constraint("Vertical", 17, 2, 21, 2))
sketch4.addConstraint(Sketcher.Constraint("Equal", 10, 16))
sketch4.addConstraint(Sketcher.Constraint("Radius", 5, Q("15.999999 mm")))
sketch4.addConstraint(Sketcher.Constraint("DistanceX", 1, 1, 1, 2, Q("20 mm")))
sketch4.addConstraint(Sketcher.Constraint("DistanceX", 12, 1, 12, 2, Q("8 mm")))
sketch4.addConstraint(Sketcher.Constraint("DistanceY", 2, 2, 2, 1, Q("55 mm")))
sketch4.addConstraint(Sketcher.Constraint("DistanceY", 13, 2, 13, 1, Q("17 mm")))
sketch4.addConstraint(Sketcher.Constraint("DistanceY", 15, 2, 15, 1, Q("18 mm")))
sketch4.addConstraint(Sketcher.Constraint("DistanceY", 20, 2, 20, 1, Q("4 mm")))
sketch4.addConstraint(Sketcher.Constraint("DistanceX", -1, 1, 0, 2, Q("12 mm")))
sketch4.addConstraint(Sketcher.Constraint("DistanceY", -1, 1, 20, 2, Q("10 mm")))
pad4 = body7.newObject("PartDesign::Pad", "Pad003")
pad4.Profile = sketch4
pad4.Length = 40
body8 = doc.addObject("PartDesign::Body", "Body007")

sketch5 = body8.newObject("Sketcher::SketchObject", "Sketch004")
sketch5.AttachmentSupport = (doc.getObject("XY_Plane007"), [""])
sketch5.MapMode = "FlatFace"
sketch5.addGeometry(Part.Circle(Vector(0, 0, 0), Vector(0, 0, 1), 14), False)
sketch5.addConstraint(Sketcher.Constraint("Coincident", 0, 3, -1, 1))
sketch5.addConstraint(Sketcher.Constraint("Diameter", 0, Q("28 mm")))
pad5 = body8.newObject("PartDesign::Pad", "Pad004")
pad5.Profile = sketch5
pad5.Length = 21
body9 = doc.addObject("PartDesign::Body", "Body008")
doc.recompute()

body8.Placement = App.Placement(Vector(0, 0, 0), App.Rotation(Vector(0, 1, 0), 90))
boolean4 = body9.newObject("PartDesign::Boolean", "Boolean003")
boolean4.Type = "Fuse"
boolean4.addObjects([body8])
body10 = doc.addObject("PartDesign::Body", "Body009")

sketch6 = body10.newObject("Sketcher::SketchObject", "Sketch005")
sketch6.AttachmentSupport = (doc.getObject("XY_Plane009"), [""])
sketch6.MapMode = "FlatFace"
sketch6.AttachmentOffset = App.Placement(Vector(0, 0, -21), App.Rotation())
sketch6.addGeometry(Part.LineSegment(Vector(0, 20, 0), Vector(0, -20, 0)), False)
sketch6.addGeometry(Part.LineSegment(Vector(0, -20, 0), Vector(40, -20, 0)), False)
sketch6.addGeometry(Part.LineSegment(Vector(40, -20, 0), Vector(40, 20, 0)), False)
sketch6.addGeometry(Part.LineSegment(Vector(40, 20, 0), Vector(0, 20, 0)), False)
sketch6.addConstraint(Sketcher.Constraint("Coincident", 0, 2, 1, 1))
sketch6.addConstraint(Sketcher.Constraint("Coincident", 1, 2, 2, 1))
sketch6.addConstraint(Sketcher.Constraint("Coincident", 2, 2, 3, 1))
sketch6.addConstraint(Sketcher.Constraint("Coincident", 3, 2, 0, 1))
sketch6.addConstraint(Sketcher.Constraint("Vertical", 0))
sketch6.addConstraint(Sketcher.Constraint("Horizontal", 1))
sketch6.addConstraint(Sketcher.Constraint("Vertical", 2))
sketch6.addConstraint(Sketcher.Constraint("Horizontal", 3))
sketch6.addConstraint(Sketcher.Constraint("Symmetric", 0, 2, 3, 2, -1, 1))
sketch6.addConstraint(Sketcher.Constraint("Equal", 3, 0))
sketch6.addConstraint(Sketcher.Constraint("DistanceX", 1, 1, 1, 2, Q("40 mm")))
pad6 = body10.newObject("PartDesign::Pad", "Pad005")
pad6.Profile = sketch6
pad6.Length = 38
doc.recompute()

boolean5 = body10.newObject("PartDesign::Boolean", "Boolean004")
boolean5.Type = "Cut"
boolean5.addObjects([body9])
doc.recompute()

boolean6 = body10.newObject("PartDesign::Boolean", "Boolean005")
boolean6.Type = "Cut"
boolean6.addObjects([body7])
doc.recompute()

boolean7 = body10.newObject("PartDesign::Boolean", "Boolean006")
boolean7.Type = "Cut"
boolean7.addObjects([body6])
doc.recompute()

boolean8 = body10.newObject("PartDesign::Boolean", "Boolean007")
boolean8.Type = "Cut"
boolean8.addObjects([body3])
doc.recompute()

boolean9 = body10.newObject("PartDesign::Boolean", "Boolean008")
boolean9.Type = "Cut"
boolean9.addObjects([body])

doc.recompute()
